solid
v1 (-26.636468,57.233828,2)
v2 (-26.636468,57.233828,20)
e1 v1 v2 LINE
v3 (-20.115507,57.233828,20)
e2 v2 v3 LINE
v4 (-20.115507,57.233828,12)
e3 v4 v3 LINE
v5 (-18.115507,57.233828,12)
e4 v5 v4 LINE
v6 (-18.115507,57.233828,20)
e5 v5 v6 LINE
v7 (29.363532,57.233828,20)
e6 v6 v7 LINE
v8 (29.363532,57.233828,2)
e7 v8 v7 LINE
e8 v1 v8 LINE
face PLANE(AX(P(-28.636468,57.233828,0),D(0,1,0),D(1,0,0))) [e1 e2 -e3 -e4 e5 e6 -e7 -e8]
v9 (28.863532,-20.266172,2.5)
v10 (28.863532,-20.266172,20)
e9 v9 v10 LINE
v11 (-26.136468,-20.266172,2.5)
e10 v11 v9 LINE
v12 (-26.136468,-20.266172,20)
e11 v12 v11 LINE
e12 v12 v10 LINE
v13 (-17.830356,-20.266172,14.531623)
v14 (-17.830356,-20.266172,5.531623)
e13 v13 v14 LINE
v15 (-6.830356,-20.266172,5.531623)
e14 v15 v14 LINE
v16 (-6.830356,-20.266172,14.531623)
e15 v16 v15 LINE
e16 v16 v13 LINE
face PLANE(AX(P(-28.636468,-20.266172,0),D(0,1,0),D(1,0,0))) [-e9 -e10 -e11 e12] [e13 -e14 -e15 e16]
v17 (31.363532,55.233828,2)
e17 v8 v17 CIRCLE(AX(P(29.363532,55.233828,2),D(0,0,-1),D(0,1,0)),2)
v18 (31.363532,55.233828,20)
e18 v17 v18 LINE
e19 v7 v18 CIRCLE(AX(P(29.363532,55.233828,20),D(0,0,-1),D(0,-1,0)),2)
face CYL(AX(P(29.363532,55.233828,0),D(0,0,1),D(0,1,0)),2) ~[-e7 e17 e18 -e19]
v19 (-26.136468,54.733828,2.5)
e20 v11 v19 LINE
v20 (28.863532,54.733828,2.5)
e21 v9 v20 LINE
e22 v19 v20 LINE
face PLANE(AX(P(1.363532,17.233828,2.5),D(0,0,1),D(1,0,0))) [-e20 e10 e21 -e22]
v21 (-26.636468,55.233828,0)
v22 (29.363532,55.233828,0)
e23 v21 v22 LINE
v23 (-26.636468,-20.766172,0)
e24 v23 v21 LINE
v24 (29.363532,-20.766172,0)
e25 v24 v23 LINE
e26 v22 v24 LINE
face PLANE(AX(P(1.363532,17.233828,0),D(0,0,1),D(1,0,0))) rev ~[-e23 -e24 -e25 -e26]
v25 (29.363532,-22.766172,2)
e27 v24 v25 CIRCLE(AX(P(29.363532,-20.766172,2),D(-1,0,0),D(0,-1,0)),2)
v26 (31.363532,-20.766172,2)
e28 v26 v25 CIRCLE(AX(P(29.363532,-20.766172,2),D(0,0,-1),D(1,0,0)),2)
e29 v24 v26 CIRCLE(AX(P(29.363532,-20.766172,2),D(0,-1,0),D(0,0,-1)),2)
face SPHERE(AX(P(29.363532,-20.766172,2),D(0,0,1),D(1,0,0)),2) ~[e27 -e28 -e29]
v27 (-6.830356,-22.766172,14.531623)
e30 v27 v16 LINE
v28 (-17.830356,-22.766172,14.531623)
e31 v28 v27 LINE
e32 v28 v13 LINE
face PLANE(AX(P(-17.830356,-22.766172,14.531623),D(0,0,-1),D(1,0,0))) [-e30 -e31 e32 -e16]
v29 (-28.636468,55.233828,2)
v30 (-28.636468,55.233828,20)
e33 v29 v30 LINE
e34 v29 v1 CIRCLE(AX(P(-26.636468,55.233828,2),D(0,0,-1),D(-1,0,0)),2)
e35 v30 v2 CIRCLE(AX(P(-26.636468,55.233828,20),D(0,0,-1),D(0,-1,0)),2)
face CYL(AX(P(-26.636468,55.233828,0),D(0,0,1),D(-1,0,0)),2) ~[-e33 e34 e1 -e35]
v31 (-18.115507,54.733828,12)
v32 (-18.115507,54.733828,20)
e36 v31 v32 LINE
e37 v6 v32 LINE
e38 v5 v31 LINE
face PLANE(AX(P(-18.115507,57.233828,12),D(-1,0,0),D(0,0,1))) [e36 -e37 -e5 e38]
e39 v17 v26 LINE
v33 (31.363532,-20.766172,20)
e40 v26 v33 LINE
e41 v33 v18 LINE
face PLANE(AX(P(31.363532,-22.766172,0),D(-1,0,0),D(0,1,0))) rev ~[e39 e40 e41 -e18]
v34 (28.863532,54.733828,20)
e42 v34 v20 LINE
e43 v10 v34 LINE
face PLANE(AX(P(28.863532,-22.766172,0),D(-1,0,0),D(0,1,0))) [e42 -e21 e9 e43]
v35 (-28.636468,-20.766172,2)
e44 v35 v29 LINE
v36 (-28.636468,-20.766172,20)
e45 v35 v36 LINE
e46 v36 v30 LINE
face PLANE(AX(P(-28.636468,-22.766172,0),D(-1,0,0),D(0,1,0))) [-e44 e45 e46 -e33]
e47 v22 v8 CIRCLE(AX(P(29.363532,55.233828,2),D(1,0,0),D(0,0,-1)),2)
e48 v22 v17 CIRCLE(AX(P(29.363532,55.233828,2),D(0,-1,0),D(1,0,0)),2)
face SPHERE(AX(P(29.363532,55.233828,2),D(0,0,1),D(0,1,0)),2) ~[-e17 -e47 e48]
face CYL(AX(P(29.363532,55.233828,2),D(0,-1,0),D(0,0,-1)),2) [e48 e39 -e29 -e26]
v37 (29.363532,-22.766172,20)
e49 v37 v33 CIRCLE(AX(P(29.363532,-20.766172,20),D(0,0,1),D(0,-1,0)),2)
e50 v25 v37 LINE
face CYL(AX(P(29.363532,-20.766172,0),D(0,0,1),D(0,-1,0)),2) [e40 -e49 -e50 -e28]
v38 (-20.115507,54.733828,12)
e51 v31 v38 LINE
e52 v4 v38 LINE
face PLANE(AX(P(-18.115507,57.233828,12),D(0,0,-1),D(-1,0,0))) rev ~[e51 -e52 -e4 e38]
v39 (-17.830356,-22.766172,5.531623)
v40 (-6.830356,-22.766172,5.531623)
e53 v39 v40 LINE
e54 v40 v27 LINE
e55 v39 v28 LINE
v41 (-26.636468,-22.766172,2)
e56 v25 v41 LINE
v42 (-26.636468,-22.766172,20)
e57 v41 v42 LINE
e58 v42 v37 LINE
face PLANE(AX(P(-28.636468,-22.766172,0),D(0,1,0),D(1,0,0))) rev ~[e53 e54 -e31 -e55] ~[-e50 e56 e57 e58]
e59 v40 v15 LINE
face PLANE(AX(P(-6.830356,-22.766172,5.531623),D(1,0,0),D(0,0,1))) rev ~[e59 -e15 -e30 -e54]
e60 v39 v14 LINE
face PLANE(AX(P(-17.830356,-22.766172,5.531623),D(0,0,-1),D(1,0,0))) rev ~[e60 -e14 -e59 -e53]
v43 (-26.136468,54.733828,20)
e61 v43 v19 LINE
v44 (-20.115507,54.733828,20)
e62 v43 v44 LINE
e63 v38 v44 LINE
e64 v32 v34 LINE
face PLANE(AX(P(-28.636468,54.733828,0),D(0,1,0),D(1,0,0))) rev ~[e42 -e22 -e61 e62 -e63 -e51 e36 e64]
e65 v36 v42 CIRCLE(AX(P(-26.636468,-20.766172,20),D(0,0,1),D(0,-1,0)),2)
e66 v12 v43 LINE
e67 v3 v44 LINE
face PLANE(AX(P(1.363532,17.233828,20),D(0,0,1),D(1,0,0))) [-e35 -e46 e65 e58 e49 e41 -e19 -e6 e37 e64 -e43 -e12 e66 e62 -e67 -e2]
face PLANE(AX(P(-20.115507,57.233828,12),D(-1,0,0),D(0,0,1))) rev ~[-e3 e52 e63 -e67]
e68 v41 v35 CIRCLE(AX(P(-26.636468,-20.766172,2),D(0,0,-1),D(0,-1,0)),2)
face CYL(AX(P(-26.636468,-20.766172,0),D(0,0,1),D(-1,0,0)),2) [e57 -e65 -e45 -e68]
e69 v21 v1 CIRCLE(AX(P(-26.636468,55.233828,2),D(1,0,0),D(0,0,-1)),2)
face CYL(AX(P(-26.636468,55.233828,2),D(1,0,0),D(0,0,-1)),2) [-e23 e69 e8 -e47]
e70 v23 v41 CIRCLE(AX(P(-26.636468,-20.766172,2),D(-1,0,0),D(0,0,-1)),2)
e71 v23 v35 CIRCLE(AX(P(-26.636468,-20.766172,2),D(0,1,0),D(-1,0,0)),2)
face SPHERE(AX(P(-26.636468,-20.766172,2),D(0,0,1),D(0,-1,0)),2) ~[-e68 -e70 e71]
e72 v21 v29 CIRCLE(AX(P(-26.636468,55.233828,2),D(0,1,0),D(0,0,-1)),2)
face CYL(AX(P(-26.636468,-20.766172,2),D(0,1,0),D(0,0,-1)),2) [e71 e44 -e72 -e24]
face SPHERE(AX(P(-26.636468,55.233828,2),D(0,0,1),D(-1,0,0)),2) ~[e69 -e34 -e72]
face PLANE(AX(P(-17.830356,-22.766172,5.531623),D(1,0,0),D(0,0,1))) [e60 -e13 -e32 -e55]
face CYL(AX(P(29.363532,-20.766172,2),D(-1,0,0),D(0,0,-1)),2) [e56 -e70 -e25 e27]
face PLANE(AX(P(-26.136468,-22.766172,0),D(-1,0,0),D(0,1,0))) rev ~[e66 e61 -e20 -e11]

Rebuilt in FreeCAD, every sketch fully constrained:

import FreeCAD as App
import Part
import Sketcher
Q = App.Units.Quantity


def edges_at(feature, points):
    """Names of the edges that pass closest to the given points."""
    edges = feature.Shape.Edges
    near = lambda p: min(range(len(edges)), key=lambda i: edges[i].distToShape(Part.Vertex(*p))[0])
    return sorted({f"Edge{near(p) + 1}" for p in points})


def faces_at(feature, points):
    """Names of the faces that lie closest to the given points."""
    faces = feature.Shape.Faces
    near = lambda p: min(range(len(faces)), key=lambda i: faces[i].distToShape(Part.Vertex(*p))[0])
    return sorted({f"Face{near(p) + 1}" for p in points})


def add_polygon(sketch, points):
    """Adds a closed chain of lines whose ends are joined by coincident constraints."""
    first, n = sketch.GeometryCount, len(points)
    for a, b in zip(points, points[1:] + points[:1]):
        sketch.addGeometry(Part.LineSegment(App.Vector(*a, 0), App.Vector(*b, 0)), False)
    for i in range(n):
        sketch.addConstraint(Sketcher.Constraint("Coincident", first + i, 2, first + (i + 1) % n, 1))

doc = App.newDocument("Part")
body = doc.addObject("PartDesign::Body", "Body")

# Sketch on XY plane
sketch1 = body.newObject("Sketcher::SketchObject", "Sketch")
sketch1.AttachmentSupport = (doc.getObject("XY_Plane"), [""])
sketch1.MapMode = "FlatFace"
add_polygon(sketch1, [(-28.636468, 57.233828), (-28.636468, -22.766172), (31.363532, -22.766172), (31.363532, 57.233828)])  # lines 0-3
sketch1.addConstraint([
    Sketcher.Constraint("Vertical", 0),
    Sketcher.Constraint("Horizontal", 1),
    Sketcher.Constraint("Vertical", 2),
    Sketcher.Constraint("Horizontal", 3),
    Sketcher.Constraint("DistanceX", 1, 1, 1, 2, Q("60 mm")),
    Sketcher.Constraint("DistanceY", 0, 2, 0, 1, Q("80 mm")),
    Sketcher.Constraint("DistanceX", 0, 2, -1, 1, Q("28.636468 mm")),
    Sketcher.Constraint("DistanceY", -1, 1, 2, 2, Q("57.233828 mm")),
])
pad1 = body.newObject("PartDesign::Pad", "Pad")
pad1.Profile = sketch1
pad1.Length = 20
doc.recompute()

thickness = body.newObject("PartDesign::Thickness", "Thickness")
thickness.Base = (pad1, faces_at(pad1, [(1.364, 17.234, 20)]))
thickness.Value = 2.5
thickness.Reversed = True
thickness.Join = "Arc"

# Sketch on XZ plane
sketch2 = body.newObject("Sketcher::SketchObject", "Sketch001")
sketch2.AttachmentSupport = (doc.getObject("XZ_Plane"), [""])
sketch2.MapMode = "FlatFace"
sketch2.AttachmentOffset = App.Placement(App.Vector(0, 0, 22.766172), App.Rotation())
add_polygon(sketch2, [(-17.830356, 14.531623), (-17.830356, 5.531623), (-6.830356, 5.531623), (-6.830356, 14.531623)])  # lines 0-3
sketch2.addConstraint([
    Sketcher.Constraint("Vertical", 0),
    Sketcher.Constraint("Horizontal", 1),
    Sketcher.Constraint("Vertical", 2),
    Sketcher.Constraint("Horizontal", 3),
    Sketcher.Constraint("DistanceX", 1, 1, 1, 2, Q("11 mm")),
    Sketcher.Constraint("DistanceY", 0, 2, 0, 1, Q("9 mm")),
    Sketcher.Constraint("DistanceX", 0, 2, -1, 1, Q("17.830356 mm")),
    Sketcher.Constraint("DistanceY", -1, 1, 0, 2, Q("5.531623 mm")),
])
pocket1 = body.newObject("PartDesign::Pocket", "Pocket")
pocket1.Profile = sketch2
pocket1.Length = 10

# Sketch on XZ plane
sketch3 = body.newObject("Sketcher::SketchObject", "Sketch002")
sketch3.AttachmentSupport = (doc.getObject("XZ_Plane"), [""])
sketch3.MapMode = "FlatFace"
sketch3.AttachmentOffset = App.Placement(App.Vector(0, 0, -57.233828), App.Rotation())
add_polygon(sketch3, [(-18.115507, 20), (-18.115507, 12), (-20.115507, 12), (-20.115507, 20)])  # lines 0-3
sketch3.addConstraint([
    Sketcher.Constraint("Vertical", 0),
    Sketcher.Constraint("Horizontal", 1),
    Sketcher.Constraint("Vertical", 2),
    Sketcher.Constraint("Horizontal", 3),
    Sketcher.Constraint("DistanceX", 1, 2, 1, 1, Q("2 mm")),
    Sketcher.Constraint("DistanceY", 0, 2, 0, 1, Q("8 mm")),
    Sketcher.Constraint("DistanceY", -1, 1, 0, 2, Q("12 mm")),
    Sketcher.Constraint("DistanceX", 0, 2, -1, 1, Q("18.115507 mm")),
])
pocket2 = body.newObject("PartDesign::Pocket", "Pocket001")
pocket2.Profile = sketch3
pocket2.Length = 25
pocket2.Reversed = True
doc.recompute()

fillet = body.newObject("PartDesign::Fillet", "Fillet")
fillet.Base = (pocket2, edges_at(pocket2, [
    (31.364, -22.766, 10),
    (31.364, 57.234, 10),
    (-28.636, 57.234, 10),
    (-28.636, -22.766, 10),
]))
fillet.Radius = 2
doc.recompute()

fillet2 = body.newObject("PartDesign::Fillet", "Fillet001")
fillet2.Base = (fillet, edges_at(fillet, [
    (1.364, 57.234, 0),
    (30.778, 56.648, 0),
    (-28.051, 56.648, 0),
    (31.364, 17.234, 0),
    (-28.636, 17.234, 0),
    (30.778, -22.18, 0),
    (-28.051, -22.18, 0),
    (1.364, -22.766, 0),
]))
fillet2.Radius = 2

doc.recompute()
